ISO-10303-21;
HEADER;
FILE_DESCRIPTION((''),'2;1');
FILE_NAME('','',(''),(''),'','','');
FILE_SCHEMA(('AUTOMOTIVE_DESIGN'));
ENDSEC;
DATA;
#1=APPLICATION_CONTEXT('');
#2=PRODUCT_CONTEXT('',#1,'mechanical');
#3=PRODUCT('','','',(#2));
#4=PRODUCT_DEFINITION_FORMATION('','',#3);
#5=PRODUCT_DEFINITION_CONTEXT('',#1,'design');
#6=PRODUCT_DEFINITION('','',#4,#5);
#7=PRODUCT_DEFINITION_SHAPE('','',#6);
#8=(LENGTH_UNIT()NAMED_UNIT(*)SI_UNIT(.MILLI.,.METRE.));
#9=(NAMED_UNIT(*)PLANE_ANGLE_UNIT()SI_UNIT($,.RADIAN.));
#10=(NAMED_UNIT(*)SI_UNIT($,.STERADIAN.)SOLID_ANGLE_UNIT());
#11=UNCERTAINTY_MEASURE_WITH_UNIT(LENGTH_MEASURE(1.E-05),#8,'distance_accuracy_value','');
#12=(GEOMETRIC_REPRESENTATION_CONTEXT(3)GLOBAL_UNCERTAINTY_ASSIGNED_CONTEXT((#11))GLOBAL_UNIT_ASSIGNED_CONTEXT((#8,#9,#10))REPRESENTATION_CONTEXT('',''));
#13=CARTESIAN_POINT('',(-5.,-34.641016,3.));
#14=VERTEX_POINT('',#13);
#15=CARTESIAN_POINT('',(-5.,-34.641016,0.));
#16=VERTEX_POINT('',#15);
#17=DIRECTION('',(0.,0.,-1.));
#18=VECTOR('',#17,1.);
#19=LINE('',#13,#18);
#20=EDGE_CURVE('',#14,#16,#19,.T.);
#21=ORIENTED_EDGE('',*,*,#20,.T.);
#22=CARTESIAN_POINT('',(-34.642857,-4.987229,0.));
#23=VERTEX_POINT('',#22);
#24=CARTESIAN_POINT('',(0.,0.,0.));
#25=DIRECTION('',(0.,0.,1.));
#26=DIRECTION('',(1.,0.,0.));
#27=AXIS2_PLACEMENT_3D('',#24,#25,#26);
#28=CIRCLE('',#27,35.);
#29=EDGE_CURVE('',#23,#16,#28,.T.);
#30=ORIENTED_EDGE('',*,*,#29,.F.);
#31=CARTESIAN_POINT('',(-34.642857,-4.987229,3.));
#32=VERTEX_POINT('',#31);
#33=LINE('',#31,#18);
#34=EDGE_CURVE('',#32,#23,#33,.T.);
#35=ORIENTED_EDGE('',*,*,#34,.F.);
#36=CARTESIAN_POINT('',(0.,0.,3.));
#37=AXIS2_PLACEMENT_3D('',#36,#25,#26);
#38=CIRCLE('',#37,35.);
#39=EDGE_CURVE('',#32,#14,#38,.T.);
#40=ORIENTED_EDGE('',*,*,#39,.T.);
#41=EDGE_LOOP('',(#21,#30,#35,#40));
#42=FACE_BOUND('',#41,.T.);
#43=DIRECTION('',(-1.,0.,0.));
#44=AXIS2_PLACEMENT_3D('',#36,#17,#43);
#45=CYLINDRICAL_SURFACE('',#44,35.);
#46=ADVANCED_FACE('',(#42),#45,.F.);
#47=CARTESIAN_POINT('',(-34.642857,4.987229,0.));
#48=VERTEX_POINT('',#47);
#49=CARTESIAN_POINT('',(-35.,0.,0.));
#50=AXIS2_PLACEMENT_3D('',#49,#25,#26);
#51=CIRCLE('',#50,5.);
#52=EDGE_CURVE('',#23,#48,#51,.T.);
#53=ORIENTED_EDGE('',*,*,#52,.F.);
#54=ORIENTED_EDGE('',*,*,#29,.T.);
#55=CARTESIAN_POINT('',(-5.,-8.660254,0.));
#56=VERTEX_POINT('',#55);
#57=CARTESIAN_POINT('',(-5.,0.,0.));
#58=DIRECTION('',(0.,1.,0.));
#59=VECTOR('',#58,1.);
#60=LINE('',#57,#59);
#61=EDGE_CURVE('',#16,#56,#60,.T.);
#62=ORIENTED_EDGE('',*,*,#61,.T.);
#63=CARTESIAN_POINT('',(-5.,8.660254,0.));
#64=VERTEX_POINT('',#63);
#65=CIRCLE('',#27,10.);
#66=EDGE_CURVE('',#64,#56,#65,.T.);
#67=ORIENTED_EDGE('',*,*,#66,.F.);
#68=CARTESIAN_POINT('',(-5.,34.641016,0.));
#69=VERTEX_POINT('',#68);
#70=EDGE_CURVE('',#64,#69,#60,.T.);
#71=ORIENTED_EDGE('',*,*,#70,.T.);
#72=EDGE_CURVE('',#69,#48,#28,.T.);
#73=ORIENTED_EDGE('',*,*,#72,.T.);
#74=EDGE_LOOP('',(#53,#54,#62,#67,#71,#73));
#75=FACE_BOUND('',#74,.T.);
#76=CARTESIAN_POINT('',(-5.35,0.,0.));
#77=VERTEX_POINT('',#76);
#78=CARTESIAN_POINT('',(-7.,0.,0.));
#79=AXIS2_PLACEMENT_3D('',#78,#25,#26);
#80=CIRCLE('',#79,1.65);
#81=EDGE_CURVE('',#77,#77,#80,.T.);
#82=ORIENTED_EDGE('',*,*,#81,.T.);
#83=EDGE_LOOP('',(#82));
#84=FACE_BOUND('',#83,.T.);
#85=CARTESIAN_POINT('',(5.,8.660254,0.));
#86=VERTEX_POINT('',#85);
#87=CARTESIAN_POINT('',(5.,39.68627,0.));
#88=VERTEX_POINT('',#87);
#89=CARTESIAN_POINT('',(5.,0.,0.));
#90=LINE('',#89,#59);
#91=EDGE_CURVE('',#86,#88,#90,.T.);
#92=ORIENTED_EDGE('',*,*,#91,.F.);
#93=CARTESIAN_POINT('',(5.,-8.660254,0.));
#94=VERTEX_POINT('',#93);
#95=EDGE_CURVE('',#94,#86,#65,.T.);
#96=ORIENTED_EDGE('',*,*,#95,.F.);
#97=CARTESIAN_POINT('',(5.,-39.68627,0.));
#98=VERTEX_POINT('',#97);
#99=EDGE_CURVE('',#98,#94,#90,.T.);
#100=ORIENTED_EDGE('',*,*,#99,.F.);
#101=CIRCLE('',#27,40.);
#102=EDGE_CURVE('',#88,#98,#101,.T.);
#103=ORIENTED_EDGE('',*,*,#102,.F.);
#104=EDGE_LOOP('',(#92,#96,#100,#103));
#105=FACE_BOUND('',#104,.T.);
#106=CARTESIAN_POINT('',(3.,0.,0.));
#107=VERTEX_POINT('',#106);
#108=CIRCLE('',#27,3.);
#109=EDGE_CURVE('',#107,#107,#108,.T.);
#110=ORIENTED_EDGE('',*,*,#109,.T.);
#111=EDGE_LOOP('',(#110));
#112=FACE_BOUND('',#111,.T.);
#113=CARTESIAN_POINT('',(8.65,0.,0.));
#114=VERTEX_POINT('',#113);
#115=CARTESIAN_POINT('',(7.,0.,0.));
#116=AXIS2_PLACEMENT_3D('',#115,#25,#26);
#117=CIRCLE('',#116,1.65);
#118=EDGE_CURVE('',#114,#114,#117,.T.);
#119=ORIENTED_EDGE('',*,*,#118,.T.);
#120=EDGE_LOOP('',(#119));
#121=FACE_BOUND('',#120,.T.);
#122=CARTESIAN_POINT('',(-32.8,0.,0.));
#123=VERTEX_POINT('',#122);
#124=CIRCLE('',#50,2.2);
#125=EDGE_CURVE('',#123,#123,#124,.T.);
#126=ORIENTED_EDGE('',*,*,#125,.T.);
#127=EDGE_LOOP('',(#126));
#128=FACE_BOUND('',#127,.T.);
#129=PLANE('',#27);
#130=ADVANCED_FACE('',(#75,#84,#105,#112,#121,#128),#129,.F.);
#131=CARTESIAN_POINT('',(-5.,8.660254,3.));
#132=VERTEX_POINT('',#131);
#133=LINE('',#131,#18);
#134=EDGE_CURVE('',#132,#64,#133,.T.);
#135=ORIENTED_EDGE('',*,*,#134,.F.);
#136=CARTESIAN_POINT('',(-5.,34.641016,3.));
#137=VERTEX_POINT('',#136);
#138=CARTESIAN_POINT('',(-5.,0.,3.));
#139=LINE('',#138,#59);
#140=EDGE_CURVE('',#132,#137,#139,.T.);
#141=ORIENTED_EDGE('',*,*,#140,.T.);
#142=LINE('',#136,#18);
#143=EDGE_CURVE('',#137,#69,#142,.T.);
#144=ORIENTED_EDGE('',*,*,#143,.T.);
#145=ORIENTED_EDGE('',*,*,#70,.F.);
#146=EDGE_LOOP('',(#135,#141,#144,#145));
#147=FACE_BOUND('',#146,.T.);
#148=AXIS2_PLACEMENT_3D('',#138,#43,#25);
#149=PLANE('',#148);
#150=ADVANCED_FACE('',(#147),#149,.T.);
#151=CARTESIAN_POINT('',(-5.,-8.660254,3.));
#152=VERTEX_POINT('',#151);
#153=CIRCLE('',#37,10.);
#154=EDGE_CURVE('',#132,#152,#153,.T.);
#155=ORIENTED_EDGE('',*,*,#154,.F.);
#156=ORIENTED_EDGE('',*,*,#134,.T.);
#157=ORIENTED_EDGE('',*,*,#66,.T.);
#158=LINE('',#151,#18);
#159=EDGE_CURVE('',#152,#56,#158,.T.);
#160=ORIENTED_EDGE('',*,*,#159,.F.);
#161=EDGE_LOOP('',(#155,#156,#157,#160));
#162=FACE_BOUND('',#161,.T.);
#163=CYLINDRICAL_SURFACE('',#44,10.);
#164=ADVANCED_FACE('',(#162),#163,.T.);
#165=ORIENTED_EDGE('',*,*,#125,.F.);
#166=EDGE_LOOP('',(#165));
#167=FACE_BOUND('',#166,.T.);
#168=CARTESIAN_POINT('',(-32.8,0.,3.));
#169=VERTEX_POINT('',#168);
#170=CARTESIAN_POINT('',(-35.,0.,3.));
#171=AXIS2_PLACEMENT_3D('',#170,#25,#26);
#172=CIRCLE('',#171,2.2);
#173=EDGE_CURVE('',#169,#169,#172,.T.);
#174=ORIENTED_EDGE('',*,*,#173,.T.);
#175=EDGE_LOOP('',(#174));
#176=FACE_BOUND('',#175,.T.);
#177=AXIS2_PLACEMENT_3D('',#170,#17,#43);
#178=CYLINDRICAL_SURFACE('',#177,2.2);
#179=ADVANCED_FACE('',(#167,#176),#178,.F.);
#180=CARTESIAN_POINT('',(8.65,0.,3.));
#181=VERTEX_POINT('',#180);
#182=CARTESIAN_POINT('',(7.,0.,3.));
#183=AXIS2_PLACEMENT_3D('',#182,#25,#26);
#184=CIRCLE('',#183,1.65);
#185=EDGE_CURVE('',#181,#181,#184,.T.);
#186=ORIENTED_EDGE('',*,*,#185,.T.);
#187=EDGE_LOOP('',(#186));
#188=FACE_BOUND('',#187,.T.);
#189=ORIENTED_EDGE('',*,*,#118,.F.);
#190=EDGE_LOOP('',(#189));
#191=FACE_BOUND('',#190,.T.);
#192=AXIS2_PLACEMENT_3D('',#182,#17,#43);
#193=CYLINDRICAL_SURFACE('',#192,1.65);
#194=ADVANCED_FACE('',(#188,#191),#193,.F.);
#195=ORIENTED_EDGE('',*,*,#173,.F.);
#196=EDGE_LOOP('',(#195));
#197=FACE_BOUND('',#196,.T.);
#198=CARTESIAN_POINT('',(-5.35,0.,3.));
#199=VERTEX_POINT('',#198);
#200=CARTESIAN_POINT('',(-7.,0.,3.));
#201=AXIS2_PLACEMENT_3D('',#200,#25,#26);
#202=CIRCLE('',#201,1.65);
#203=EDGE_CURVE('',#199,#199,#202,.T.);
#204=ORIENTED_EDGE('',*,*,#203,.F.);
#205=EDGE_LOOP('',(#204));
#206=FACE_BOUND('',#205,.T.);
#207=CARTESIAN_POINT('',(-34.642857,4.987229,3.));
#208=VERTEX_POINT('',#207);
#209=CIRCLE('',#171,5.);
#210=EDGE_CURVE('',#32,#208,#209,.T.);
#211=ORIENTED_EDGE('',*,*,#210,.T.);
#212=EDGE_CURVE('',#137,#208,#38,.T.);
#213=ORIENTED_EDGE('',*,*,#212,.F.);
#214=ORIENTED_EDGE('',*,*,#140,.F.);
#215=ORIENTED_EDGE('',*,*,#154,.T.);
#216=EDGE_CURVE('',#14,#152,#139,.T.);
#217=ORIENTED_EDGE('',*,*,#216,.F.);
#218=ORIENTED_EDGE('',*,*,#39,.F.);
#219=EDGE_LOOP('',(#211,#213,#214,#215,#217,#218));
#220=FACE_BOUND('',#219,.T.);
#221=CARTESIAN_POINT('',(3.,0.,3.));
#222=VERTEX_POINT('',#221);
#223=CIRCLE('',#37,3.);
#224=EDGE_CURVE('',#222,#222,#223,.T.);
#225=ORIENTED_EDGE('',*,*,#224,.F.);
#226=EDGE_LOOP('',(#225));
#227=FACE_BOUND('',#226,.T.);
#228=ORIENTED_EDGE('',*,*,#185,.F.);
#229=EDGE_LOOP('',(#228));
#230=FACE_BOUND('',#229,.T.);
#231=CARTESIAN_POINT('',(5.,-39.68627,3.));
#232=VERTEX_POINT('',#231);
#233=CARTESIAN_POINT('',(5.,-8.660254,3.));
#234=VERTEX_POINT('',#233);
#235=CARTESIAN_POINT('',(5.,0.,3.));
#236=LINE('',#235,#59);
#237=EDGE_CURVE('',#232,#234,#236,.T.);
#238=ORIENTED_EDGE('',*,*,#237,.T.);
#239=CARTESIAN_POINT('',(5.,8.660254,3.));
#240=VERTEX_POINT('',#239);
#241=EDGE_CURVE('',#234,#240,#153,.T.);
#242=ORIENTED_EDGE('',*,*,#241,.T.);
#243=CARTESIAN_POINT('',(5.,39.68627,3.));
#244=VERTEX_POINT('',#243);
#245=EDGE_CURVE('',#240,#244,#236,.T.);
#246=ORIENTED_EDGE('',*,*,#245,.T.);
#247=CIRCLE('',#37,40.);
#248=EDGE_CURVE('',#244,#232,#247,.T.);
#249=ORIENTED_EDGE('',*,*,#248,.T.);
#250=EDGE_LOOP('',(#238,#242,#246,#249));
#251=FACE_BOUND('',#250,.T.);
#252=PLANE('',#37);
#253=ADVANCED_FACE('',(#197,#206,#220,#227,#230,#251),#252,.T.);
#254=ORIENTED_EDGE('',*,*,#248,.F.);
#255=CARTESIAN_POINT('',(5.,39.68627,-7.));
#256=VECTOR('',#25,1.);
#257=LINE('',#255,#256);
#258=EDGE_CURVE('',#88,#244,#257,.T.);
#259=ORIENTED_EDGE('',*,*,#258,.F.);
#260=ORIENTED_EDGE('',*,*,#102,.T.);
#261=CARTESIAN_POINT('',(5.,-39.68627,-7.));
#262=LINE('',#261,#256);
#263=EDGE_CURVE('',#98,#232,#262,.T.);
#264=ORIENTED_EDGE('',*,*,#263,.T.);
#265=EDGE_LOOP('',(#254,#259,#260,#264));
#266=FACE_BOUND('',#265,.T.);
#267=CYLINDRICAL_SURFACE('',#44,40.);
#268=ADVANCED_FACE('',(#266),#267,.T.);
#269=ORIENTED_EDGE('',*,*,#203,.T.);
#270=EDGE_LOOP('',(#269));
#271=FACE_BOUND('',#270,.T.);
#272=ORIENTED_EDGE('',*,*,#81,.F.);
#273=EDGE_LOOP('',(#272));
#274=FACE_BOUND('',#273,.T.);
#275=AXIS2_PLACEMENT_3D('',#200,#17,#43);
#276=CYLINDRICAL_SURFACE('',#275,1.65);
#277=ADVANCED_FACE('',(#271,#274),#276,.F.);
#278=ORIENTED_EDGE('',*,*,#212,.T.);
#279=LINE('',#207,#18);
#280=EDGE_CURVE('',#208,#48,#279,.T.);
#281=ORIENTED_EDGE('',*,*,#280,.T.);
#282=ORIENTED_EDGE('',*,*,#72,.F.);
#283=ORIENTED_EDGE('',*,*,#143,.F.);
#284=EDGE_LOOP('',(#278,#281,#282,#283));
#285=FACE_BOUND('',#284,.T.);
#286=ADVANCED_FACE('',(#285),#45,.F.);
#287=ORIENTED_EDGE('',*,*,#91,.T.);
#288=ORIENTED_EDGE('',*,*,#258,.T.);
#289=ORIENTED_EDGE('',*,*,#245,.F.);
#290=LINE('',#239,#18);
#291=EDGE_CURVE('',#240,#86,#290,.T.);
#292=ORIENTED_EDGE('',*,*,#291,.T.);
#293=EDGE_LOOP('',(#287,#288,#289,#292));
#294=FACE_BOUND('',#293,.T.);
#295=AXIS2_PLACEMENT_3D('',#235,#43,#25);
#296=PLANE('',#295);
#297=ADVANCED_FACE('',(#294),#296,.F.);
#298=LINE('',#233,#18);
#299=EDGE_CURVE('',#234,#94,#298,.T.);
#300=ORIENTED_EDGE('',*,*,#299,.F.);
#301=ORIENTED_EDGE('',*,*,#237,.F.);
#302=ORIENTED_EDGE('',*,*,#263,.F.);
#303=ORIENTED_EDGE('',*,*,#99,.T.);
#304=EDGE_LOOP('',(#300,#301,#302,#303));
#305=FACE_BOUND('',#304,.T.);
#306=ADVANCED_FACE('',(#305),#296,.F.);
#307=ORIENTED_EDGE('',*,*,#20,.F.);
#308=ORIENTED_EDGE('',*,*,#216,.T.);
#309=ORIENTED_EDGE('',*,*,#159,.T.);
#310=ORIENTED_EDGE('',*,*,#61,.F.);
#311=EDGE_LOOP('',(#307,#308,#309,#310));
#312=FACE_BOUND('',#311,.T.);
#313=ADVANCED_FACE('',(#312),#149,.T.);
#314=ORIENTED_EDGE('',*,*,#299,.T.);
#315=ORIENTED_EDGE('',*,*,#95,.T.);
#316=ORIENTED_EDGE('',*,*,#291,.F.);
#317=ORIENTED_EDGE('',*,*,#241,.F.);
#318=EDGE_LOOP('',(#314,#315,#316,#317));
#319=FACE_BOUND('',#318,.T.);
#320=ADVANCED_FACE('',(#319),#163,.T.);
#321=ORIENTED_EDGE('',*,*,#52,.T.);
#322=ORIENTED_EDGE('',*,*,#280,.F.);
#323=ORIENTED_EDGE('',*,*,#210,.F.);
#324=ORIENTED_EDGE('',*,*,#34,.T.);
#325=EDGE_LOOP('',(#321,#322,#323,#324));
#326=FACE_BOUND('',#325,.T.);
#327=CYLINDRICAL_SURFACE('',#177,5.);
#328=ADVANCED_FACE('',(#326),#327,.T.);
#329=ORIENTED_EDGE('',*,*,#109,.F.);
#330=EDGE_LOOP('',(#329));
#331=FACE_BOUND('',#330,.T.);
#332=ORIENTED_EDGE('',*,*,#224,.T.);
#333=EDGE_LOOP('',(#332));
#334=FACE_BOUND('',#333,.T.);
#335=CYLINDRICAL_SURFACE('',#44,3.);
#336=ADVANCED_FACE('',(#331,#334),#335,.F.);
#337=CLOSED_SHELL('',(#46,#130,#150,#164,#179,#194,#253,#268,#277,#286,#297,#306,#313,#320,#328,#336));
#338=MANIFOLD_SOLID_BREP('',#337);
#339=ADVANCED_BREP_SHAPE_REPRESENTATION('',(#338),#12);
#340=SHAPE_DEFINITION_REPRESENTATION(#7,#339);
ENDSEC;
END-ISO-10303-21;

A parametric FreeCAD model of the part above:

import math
import FreeCAD as App
import Part
import Sketcher
from FreeCAD import Vector


def add_polygon(sketch, points):
    """Adds a closed chain of lines whose ends are joined by coincident constraints."""
    first, n = sketch.GeometryCount, len(points)
    for a, b in zip(points, points[1:] + points[:1]):
        sketch.addGeometry(Part.LineSegment(App.Vector(*a, 0), App.Vector(*b, 0)), False)
    for i in range(n):
        sketch.addConstraint(Sketcher.Constraint("Coincident", first + i, 2, first + (i + 1) % n, 1))

doc = App.newDocument("Part")
body = doc.addObject("PartDesign::Body", "Body")

# Sketch on XY plane
sketch1 = doc.addObject("Sketcher::SketchObject", "Sketch")
body.addObject(sketch1)
sketch1.AttachmentSupport = (doc.XY_Plane, [""])
sketch1.MapMode = "FlatFace"
sketch1.addGeometry(Part.Circle(Vector(0, 0, 0), Vector(0, 0, 1), 40), False)
sketch1.addGeometry(Part.Circle(Vector(-35, 0, 0), Vector(0, 0, 1), 2.2), False)
sketch1.addGeometry(Part.ArcOfCircle(Part.Circle(Vector(0, 0, 0), Vector(0, 0, 1), 35), math.radians(98.213211), math.radians(171.807912)), False)
sketch1.addGeometry(Part.LineSegment(Vector(-5, 34.641016, 0), Vector(-5, 8.660254, 0)), False)
sketch1.addGeometry(Part.ArcOfCircle(Part.Circle(Vector(0, 0, 0), Vector(0, 0, 1), 10), math.radians(120), math.radians(240)), False)
sketch1.addGeometry(Part.LineSegment(Vector(-5, -8.660254, 0), Vector(-5, -34.641016, 0)), False)
sketch1.addGeometry(Part.ArcOfCircle(Part.Circle(Vector(0, 0, 0), Vector(0, 0, 1), 35), math.radians(-171.807912), math.radians(-98.213211)), False)
sketch1.addGeometry(Part.ArcOfCircle(Part.Circle(Vector(-35, 0, 0), Vector(0, 0, 1), 5), math.radians(-85.903956), math.radians(85.903956)), False)
sketch1.addGeometry(Part.Circle(Vector(-7, 0, 0), Vector(0, 0, 1), 1.65), False)
sketch1.addGeometry(Part.Circle(Vector(0, 0, 0), Vector(0, 0, 1), 3), False)
sketch1.addGeometry(Part.Circle(Vector(7, 0, 0), Vector(0, 0, 1), 1.65), False)
sketch1.addGeometry(Part.ArcOfCircle(Part.Circle(Vector(0, 0, 0), Vector(0, 0, 1), 35), math.radians(-81.786789), math.radians(81.786789)), False)
sketch1.addGeometry(Part.LineSegment(Vector(5, -34.641016, 0), Vector(5, -8.660254, 0)), False)
sketch1.addGeometry(Part.ArcOfCircle(Part.Circle(Vector(0, 0, 0), Vector(0, 0, 1), 10), math.radians(-60), math.radians(60)), False)
sketch1.addGeometry(Part.LineSegment(Vector(5, 8.660254, 0), Vector(5, 34.641016, 0)), False)
sketch1.addConstraint(Sketcher.Constraint("Coincident", 2, 1, 3, 1))
sketch1.addConstraint(Sketcher.Constraint("Coincident", 3, 2, 4, 1))
sketch1.addConstraint(Sketcher.Constraint("Coincident", 4, 2, 5, 1))
sketch1.addConstraint(Sketcher.Constraint("Coincident", 5, 2, 6, 2))
sketch1.addConstraint(Sketcher.Constraint("Coincident", 6, 1, 7, 1))
sketch1.addConstraint(Sketcher.Constraint("Coincident", 7, 2, 2, 2))
sketch1.addConstraint(Sketcher.Constraint("Coincident", 11, 1, 12, 1))
sketch1.addConstraint(Sketcher.Constraint("Coincident", 12, 2, 13, 1))
sketch1.addConstraint(Sketcher.Constraint("Coincident", 13, 2, 14, 1))
sketch1.addConstraint(Sketcher.Constraint("Coincident", 14, 2, 11, 2))
sketch1.addConstraint(Sketcher.Constraint("Vertical", 3))
sketch1.addConstraint(Sketcher.Constraint("Vertical", 5))
sketch1.addConstraint(Sketcher.Constraint("Vertical", 12))
sketch1.addConstraint(Sketcher.Constraint("Vertical", 14))
sketch1.addConstraint(Sketcher.Constraint("Coincident", 0, 3, -1, 1))
sketch1.addConstraint(Sketcher.Constraint("Coincident", 2, 3, -1, 1))
sketch1.addConstraint(Sketcher.Constraint("Coincident", 4, 3, -1, 1))
sketch1.addConstraint(Sketcher.Constraint("Coincident", 6, 3, -1, 1))
sketch1.addConstraint(Sketcher.Constraint("Coincident", 9, 3, -1, 1))
sketch1.addConstraint(Sketcher.Constraint("Coincident", 11, 3, -1, 1))
sketch1.addConstraint(Sketcher.Constraint("Coincident", 13, 3, -1, 1))
sketch1.addConstraint(Sketcher.Constraint("Coincident", 7, 3, 1, 3))
sketch1.addConstraint(Sketcher.Constraint("Equal", 2, 6))
sketch1.addConstraint(Sketcher.Constraint("Equal", 8, 10))
sketch1.addConstraint(Sketcher.Constraint("Equal", 6, 11))
sketch1.addConstraint(Sketcher.Constraint("Equal", 4, 13))
sketch1.addConstraint(Sketcher.Constraint("Symmetric", 8, 3, 10, 3, -1, 1))
sketch1.addConstraint(Sketcher.Constraint("PointOnObject", 1, 3, -1))
sketch1.addConstraint(Sketcher.Constraint("PointOnObject", 8, 3, -1))
sketch1.addConstraint(Sketcher.Constraint("Horizontal", 5, 2, 11, 1))
sketch1.addConstraint(Sketcher.Constraint("Horizontal", 3, 2, 13, 2))
sketch1.addConstraint(Sketcher.Constraint("Vertical", 3, 2, 4, 2))
sketch1.addConstraint(Sketcher.Constraint("Diameter", 0, 80.0))
sketch1.addConstraint(Sketcher.Constraint("Diameter", 9, 6.0))
sketch1.addConstraint(Sketcher.Constraint("Radius", 2, 35.0))
sketch1.addConstraint(Sketcher.Constraint("Radius", 4, 10.0))
sketch1.addConstraint(Sketcher.Constraint("Radius", 7, 5.0))
sketch1.addConstraint(Sketcher.Constraint("Diameter", 1, 4.4))
sketch1.addConstraint(Sketcher.Constraint("Diameter", 8, 3.3))
sketch1.addConstraint(Sketcher.Constraint("DistanceX", 1, 3, -1, 1, 35.0))
sketch1.addConstraint(Sketcher.Constraint("DistanceX", 8, 3, -1, 1, 7.0))
sketch1.addConstraint(Sketcher.Constraint("DistanceX", 2, 1, -1, 1, 5.0))
pad1 = doc.addObject("PartDesign::Pad", "Pad")
body.addObject(pad1)
pad1.Profile = sketch1
pad1.Length = 3

# Sketch on XY plane
sketch2 = doc.addObject("Sketcher::SketchObject", "Sketch001")
body.addObject(sketch2)
sketch2.AttachmentSupport = (doc.XY_Plane, [""])
sketch2.MapMode = "FlatFace"
sketch2.AttachmentOffset = App.Placement(Vector(0, 0, 3), App.Rotation())
add_polygon(sketch2, [(5, 39.68627), (5, 8.660254), (14.289111, 8.660254), (14.289111, -8.660254), (5, -8.660254), (5, -39.68627), (45, -39.68627), (45, 39.68627)])  # lines 0-7
sketch2.addConstraint(Sketcher.Constraint("Vertical", 0))
sketch2.addConstraint(Sketcher.Constraint("Horizontal", 1))
sketch2.addConstraint(Sketcher.Constraint("Vertical", 2))
sketch2.addConstraint(Sketcher.Constraint("Horizontal", 3))
sketch2.addConstraint(Sketcher.Constraint("Vertical", 4))
sketch2.addConstraint(Sketcher.Constraint("Horizontal", 5))
sketch2.addConstraint(Sketcher.Constraint("Vertical", 6))
sketch2.addConstraint(Sketcher.Constraint("Horizontal", 7))
sketch2.addConstraint(Sketcher.Constraint("Symmetric", 0, 2, 3, 2, -1))
sketch2.addConstraint(Sketcher.Constraint("Equal", 0, 4))
sketch2.addConstraint(Sketcher.Constraint("DistanceX", 5, 1, 5, 2, 40.0))
sketch2.addConstraint(Sketcher.Constraint("DistanceX", -1, 1, 0, 2, 5.0))
sketch2.addConstraint(Sketcher.Constraint("DistanceX", 1, 1, 1, 2, 9.289111))
sketch2.addConstraint(Sketcher.Constraint("DistanceY", 2, 2, 2, 1, 17.320508))
sketch2.addConstraint(Sketcher.Constraint("DistanceY", 6, 1, 6, 2, 79.372539))
pocket1 = doc.addObject("PartDesign::Pocket", "Pocket")
body.addObject(pocket1)
pocket1.Profile = sketch2
pocket1.Length = 10

doc.recompute()
